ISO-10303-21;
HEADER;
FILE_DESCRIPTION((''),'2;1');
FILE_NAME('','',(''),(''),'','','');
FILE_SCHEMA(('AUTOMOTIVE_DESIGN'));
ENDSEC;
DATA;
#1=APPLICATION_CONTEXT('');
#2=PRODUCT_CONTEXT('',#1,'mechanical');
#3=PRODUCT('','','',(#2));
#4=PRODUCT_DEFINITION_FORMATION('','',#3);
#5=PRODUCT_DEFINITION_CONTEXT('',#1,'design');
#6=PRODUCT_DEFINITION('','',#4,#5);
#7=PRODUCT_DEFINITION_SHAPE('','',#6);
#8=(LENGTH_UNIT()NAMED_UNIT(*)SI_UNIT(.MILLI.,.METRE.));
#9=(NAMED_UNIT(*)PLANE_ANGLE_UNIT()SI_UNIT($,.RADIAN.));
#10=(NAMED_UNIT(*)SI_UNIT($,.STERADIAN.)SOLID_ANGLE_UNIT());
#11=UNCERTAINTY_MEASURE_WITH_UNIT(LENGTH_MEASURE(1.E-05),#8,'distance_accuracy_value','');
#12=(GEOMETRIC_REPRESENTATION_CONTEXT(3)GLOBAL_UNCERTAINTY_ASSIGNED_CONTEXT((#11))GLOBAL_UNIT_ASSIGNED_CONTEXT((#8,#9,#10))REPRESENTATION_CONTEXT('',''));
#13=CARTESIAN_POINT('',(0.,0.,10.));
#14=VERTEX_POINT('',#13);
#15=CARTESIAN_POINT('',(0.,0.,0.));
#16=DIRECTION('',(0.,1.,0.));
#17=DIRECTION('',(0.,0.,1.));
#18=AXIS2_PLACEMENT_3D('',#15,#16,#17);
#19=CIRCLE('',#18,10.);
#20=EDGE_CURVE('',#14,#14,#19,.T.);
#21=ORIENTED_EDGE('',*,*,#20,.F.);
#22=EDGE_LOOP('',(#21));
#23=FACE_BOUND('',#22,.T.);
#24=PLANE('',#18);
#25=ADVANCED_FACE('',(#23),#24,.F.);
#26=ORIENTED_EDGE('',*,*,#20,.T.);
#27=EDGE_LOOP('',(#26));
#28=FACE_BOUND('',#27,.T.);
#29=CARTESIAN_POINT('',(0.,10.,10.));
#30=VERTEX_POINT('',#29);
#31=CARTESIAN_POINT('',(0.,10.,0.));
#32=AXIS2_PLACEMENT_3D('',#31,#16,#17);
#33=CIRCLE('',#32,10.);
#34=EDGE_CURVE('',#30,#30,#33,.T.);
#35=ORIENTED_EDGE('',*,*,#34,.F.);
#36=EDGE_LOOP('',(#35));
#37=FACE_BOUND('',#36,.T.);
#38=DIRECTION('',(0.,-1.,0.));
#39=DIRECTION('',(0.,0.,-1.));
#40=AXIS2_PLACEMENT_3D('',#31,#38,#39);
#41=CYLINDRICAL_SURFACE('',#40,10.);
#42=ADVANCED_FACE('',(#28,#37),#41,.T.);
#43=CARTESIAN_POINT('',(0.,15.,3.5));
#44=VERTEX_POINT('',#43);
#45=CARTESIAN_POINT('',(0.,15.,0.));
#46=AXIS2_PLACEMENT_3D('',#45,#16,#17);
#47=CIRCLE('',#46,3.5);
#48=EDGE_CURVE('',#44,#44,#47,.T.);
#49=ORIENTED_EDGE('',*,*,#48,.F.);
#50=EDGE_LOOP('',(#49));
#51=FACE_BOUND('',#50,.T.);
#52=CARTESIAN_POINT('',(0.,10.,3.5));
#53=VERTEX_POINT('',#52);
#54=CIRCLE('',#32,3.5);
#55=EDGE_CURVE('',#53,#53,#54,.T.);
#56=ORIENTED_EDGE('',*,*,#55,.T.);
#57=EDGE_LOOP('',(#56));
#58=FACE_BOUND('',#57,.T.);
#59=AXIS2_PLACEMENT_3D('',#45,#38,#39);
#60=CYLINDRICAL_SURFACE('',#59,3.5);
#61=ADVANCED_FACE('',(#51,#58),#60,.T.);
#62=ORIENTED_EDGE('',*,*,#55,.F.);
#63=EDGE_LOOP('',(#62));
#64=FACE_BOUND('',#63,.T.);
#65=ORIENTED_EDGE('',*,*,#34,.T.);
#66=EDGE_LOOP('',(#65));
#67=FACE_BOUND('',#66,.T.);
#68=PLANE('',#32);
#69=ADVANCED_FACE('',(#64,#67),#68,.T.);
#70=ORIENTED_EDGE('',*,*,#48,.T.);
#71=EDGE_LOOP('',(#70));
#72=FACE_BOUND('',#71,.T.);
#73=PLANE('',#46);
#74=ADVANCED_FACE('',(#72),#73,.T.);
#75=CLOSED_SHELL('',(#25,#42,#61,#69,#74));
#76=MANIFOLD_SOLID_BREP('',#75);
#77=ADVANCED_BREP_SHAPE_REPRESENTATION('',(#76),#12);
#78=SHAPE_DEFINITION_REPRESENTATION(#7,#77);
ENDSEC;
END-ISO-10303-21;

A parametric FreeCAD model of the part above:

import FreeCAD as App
import Part
import Sketcher
Q = App.Units.Quantity

doc = App.newDocument("Part")
params = doc.addObject("Spreadsheet::Sheet", "Params")
for row, (alias, value) in enumerate([
    ("sketch1_diameter", "20 mm"),
    ("pad1_length", "10 mm"),
    ("sketch2_diameter", "7 mm"),
    ("pad2_length", "5 mm"),
], start=1):
    params.set(f"A{row}", alias)
    params.set(f"B{row}", "=" + value)
    params.setAlias(f"B{row}", alias)

body = doc.addObject("PartDesign::Body", "Body")

sketch1 = doc.addObject("Sketcher::SketchObject", "Sketch")
body.addObject(sketch1)
sketch1.AttachmentSupport = (doc.XZ_Plane, [""])
sketch1.MapMode = "FlatFace"
sketch1.addGeometry(Part.Circle(App.Vector(0, 0, 0), App.Vector(0, 0, 1), 10), False)
sketch1.addConstraint(Sketcher.Constraint("Coincident", 0, 3, -1, 1))
sketch1.addConstraint(Sketcher.Constraint("Diameter", 0, Q("20 mm")))
sketch1.setExpression("Constraints[1]", "Params.sketch1_diameter")
pad1 = doc.addObject("PartDesign::Pad", "Pad")
body.addObject(pad1)
pad1.Profile = sketch1
pad1.setExpression("Length", "Params.pad1_length")
pad1.Reversed = True

sketch2 = doc.addObject("Sketcher::SketchObject", "Sketch001")
body.addObject(sketch2)
sketch2.AttachmentSupport = (doc.XZ_Plane, [""])
sketch2.MapMode = "FlatFace"
sketch2.AttachmentOffset = App.Placement(App.Vector(0, 0, -10), App.Rotation())
sketch2.addGeometry(Part.Circle(App.Vector(0, 0, 0), App.Vector(0, 0, 1), 3.5), False)
sketch2.addConstraint(Sketcher.Constraint("Coincident", 0, 3, -1, 1))
sketch2.addConstraint(Sketcher.Constraint("Diameter", 0, Q("7 mm")))
sketch2.setExpression("Constraints[1]", "Params.sketch2_diameter")
pad2 = doc.addObject("PartDesign::Pad", "Pad001")
body.addObject(pad2)
pad2.Profile = sketch2
pad2.setExpression("Length", "Params.pad2_length")
pad2.Reversed = True

doc.recompute()
